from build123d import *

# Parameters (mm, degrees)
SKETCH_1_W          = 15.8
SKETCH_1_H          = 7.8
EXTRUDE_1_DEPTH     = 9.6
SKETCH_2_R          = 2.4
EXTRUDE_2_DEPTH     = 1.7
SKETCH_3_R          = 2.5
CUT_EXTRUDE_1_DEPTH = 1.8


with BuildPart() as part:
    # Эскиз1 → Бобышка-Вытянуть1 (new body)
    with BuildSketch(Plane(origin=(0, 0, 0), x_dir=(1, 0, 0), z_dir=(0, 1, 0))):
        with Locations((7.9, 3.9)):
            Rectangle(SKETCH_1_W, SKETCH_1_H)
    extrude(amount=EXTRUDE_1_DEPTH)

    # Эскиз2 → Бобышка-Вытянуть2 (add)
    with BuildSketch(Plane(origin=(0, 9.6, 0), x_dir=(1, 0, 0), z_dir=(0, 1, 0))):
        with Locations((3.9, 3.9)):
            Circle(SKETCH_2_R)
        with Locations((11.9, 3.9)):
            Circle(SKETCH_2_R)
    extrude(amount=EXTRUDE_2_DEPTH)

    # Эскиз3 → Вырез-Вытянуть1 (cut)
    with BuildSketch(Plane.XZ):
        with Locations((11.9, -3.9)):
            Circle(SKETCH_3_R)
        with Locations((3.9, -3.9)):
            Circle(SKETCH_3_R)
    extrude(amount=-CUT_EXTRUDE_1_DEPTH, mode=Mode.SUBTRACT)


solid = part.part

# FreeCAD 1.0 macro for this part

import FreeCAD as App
import Part
import Sketcher
from FreeCAD import Vector
Q = App.Units.Quantity


def add_polygon(sketch, points):
    """Adds a closed chain of lines whose ends are joined by coincident constraints."""
    first, n = sketch.GeometryCount, len(points)
    for a, b in zip(points, points[1:] + points[:1]):
        sketch.addGeometry(Part.LineSegment(App.Vector(*a, 0), App.Vector(*b, 0)), False)
    for i in range(n):
        sketch.addConstraint(Sketcher.Constraint("Coincident", first + i, 2, first + (i + 1) % n, 1))

doc = App.newDocument("Part")
body = doc.addObject("PartDesign::Body", "Body")

sketch1 = body.newObject("Sketcher::SketchObject", "Sketch")
sketch1.AttachmentSupport = (doc.getObject("XZ_Plane"), [""])
sketch1.MapMode = "FlatFace"
add_polygon(sketch1, [(0, -7.8), (0, 0), (15.8, 0), (15.8, -7.8)])
sketch1.addConstraint(Sketcher.Constraint("Vertical", 0))
sketch1.addConstraint(Sketcher.Constraint("Horizontal", 1))
sketch1.addConstraint(Sketcher.Constraint("Vertical", 2))
sketch1.addConstraint(Sketcher.Constraint("Horizontal", 3))
sketch1.addConstraint(Sketcher.Constraint("Coincident", 0, 2, -1, 1))
sketch1.addConstraint(Sketcher.Constraint("DistanceX", 1, 1, 1, 2, Q("15.8 mm")))
sketch1.addConstraint(Sketcher.Constraint("DistanceY", 0, 1, 0, 2, Q("7.8 mm")))
pad1 = body.newObject("PartDesign::Pad", "Pad")
pad1.Profile = sketch1
pad1.Length = 9.6
pad1.Reversed = True

sketch2 = body.newObject("Sketcher::SketchObject", "Sketch001")
sketch2.AttachmentSupport = (doc.getObject("XZ_Plane"), [""])
sketch2.MapMode = "FlatFace"
sketch2.AttachmentOffset = App.Placement(Vector(0, 0, -9.6), App.Rotation())
sketch2.addGeometry(Part.Circle(Vector(3.9, -3.9, 0), Vector(0, 0, 1), 2.4), False)
sketch2.addGeometry(Part.Circle(Vector(11.9, -3.9, 0), Vector(0, 0, 1), 2.4), False)
sketch2.addConstraint(Sketcher.Constraint("Equal", 0, 1))
sketch2.addConstraint(Sketcher.Constraint("Horizontal", 0, 3, 1, 3))
sketch2.addConstraint(Sketcher.Constraint("Diameter", 0, Q("4.8 mm")))
sketch2.addConstraint(Sketcher.Constraint("DistanceX", 0, 3, 1, 3, Q("8 mm")))
sketch2.addConstraint(Sketcher.Constraint("DistanceX", -1, 1, 0, 3, Q("3.9 mm")))
sketch2.addConstraint(Sketcher.Constraint("DistanceY", 0, 3, -1, 1, Q("3.9 mm")))
pad2 = body.newObject("PartDesign::Pad", "Pad001")
pad2.Profile = sketch2
pad2.Length = 1.7
pad2.Reversed = True

sketch3 = body.newObject("Sketcher::SketchObject", "Sketch002")
sketch3.AttachmentSupport = (doc.getObject("XZ_Plane"), [""])
sketch3.MapMode = "FlatFace"
sketch3.addGeometry(Part.Circle(Vector(11.9, -3.9, 0), Vector(0, 0, 1), 2.5), False)
sketch3.addGeometry(Part.Circle(Vector(3.9, -3.9, 0), Vector(0, 0, 1), 2.5), False)
sketch3.addConstraint(Sketcher.Constraint("Equal", 0, 1))
sketch3.addConstraint(Sketcher.Constraint("Horizontal", 0, 3, 1, 3))
sketch3.addConstraint(Sketcher.Constraint("Diameter", 0, Q("5 mm")))
sketch3.addConstraint(Sketcher.Constraint("DistanceX", 1, 3, 0, 3, Q("8 mm")))
sketch3.addConstraint(Sketcher.Constraint("DistanceX", -1, 1, 0, 3, Q("11.9 mm")))
sketch3.addConstraint(Sketcher.Constraint("DistanceY", 0, 3, -1, 1, Q("3.9 mm")))
pocket1 = body.newObject("PartDesign::Pocket", "Pocket")
pocket1.Profile = sketch3
pocket1.Length = 1.8

doc.recompute()
